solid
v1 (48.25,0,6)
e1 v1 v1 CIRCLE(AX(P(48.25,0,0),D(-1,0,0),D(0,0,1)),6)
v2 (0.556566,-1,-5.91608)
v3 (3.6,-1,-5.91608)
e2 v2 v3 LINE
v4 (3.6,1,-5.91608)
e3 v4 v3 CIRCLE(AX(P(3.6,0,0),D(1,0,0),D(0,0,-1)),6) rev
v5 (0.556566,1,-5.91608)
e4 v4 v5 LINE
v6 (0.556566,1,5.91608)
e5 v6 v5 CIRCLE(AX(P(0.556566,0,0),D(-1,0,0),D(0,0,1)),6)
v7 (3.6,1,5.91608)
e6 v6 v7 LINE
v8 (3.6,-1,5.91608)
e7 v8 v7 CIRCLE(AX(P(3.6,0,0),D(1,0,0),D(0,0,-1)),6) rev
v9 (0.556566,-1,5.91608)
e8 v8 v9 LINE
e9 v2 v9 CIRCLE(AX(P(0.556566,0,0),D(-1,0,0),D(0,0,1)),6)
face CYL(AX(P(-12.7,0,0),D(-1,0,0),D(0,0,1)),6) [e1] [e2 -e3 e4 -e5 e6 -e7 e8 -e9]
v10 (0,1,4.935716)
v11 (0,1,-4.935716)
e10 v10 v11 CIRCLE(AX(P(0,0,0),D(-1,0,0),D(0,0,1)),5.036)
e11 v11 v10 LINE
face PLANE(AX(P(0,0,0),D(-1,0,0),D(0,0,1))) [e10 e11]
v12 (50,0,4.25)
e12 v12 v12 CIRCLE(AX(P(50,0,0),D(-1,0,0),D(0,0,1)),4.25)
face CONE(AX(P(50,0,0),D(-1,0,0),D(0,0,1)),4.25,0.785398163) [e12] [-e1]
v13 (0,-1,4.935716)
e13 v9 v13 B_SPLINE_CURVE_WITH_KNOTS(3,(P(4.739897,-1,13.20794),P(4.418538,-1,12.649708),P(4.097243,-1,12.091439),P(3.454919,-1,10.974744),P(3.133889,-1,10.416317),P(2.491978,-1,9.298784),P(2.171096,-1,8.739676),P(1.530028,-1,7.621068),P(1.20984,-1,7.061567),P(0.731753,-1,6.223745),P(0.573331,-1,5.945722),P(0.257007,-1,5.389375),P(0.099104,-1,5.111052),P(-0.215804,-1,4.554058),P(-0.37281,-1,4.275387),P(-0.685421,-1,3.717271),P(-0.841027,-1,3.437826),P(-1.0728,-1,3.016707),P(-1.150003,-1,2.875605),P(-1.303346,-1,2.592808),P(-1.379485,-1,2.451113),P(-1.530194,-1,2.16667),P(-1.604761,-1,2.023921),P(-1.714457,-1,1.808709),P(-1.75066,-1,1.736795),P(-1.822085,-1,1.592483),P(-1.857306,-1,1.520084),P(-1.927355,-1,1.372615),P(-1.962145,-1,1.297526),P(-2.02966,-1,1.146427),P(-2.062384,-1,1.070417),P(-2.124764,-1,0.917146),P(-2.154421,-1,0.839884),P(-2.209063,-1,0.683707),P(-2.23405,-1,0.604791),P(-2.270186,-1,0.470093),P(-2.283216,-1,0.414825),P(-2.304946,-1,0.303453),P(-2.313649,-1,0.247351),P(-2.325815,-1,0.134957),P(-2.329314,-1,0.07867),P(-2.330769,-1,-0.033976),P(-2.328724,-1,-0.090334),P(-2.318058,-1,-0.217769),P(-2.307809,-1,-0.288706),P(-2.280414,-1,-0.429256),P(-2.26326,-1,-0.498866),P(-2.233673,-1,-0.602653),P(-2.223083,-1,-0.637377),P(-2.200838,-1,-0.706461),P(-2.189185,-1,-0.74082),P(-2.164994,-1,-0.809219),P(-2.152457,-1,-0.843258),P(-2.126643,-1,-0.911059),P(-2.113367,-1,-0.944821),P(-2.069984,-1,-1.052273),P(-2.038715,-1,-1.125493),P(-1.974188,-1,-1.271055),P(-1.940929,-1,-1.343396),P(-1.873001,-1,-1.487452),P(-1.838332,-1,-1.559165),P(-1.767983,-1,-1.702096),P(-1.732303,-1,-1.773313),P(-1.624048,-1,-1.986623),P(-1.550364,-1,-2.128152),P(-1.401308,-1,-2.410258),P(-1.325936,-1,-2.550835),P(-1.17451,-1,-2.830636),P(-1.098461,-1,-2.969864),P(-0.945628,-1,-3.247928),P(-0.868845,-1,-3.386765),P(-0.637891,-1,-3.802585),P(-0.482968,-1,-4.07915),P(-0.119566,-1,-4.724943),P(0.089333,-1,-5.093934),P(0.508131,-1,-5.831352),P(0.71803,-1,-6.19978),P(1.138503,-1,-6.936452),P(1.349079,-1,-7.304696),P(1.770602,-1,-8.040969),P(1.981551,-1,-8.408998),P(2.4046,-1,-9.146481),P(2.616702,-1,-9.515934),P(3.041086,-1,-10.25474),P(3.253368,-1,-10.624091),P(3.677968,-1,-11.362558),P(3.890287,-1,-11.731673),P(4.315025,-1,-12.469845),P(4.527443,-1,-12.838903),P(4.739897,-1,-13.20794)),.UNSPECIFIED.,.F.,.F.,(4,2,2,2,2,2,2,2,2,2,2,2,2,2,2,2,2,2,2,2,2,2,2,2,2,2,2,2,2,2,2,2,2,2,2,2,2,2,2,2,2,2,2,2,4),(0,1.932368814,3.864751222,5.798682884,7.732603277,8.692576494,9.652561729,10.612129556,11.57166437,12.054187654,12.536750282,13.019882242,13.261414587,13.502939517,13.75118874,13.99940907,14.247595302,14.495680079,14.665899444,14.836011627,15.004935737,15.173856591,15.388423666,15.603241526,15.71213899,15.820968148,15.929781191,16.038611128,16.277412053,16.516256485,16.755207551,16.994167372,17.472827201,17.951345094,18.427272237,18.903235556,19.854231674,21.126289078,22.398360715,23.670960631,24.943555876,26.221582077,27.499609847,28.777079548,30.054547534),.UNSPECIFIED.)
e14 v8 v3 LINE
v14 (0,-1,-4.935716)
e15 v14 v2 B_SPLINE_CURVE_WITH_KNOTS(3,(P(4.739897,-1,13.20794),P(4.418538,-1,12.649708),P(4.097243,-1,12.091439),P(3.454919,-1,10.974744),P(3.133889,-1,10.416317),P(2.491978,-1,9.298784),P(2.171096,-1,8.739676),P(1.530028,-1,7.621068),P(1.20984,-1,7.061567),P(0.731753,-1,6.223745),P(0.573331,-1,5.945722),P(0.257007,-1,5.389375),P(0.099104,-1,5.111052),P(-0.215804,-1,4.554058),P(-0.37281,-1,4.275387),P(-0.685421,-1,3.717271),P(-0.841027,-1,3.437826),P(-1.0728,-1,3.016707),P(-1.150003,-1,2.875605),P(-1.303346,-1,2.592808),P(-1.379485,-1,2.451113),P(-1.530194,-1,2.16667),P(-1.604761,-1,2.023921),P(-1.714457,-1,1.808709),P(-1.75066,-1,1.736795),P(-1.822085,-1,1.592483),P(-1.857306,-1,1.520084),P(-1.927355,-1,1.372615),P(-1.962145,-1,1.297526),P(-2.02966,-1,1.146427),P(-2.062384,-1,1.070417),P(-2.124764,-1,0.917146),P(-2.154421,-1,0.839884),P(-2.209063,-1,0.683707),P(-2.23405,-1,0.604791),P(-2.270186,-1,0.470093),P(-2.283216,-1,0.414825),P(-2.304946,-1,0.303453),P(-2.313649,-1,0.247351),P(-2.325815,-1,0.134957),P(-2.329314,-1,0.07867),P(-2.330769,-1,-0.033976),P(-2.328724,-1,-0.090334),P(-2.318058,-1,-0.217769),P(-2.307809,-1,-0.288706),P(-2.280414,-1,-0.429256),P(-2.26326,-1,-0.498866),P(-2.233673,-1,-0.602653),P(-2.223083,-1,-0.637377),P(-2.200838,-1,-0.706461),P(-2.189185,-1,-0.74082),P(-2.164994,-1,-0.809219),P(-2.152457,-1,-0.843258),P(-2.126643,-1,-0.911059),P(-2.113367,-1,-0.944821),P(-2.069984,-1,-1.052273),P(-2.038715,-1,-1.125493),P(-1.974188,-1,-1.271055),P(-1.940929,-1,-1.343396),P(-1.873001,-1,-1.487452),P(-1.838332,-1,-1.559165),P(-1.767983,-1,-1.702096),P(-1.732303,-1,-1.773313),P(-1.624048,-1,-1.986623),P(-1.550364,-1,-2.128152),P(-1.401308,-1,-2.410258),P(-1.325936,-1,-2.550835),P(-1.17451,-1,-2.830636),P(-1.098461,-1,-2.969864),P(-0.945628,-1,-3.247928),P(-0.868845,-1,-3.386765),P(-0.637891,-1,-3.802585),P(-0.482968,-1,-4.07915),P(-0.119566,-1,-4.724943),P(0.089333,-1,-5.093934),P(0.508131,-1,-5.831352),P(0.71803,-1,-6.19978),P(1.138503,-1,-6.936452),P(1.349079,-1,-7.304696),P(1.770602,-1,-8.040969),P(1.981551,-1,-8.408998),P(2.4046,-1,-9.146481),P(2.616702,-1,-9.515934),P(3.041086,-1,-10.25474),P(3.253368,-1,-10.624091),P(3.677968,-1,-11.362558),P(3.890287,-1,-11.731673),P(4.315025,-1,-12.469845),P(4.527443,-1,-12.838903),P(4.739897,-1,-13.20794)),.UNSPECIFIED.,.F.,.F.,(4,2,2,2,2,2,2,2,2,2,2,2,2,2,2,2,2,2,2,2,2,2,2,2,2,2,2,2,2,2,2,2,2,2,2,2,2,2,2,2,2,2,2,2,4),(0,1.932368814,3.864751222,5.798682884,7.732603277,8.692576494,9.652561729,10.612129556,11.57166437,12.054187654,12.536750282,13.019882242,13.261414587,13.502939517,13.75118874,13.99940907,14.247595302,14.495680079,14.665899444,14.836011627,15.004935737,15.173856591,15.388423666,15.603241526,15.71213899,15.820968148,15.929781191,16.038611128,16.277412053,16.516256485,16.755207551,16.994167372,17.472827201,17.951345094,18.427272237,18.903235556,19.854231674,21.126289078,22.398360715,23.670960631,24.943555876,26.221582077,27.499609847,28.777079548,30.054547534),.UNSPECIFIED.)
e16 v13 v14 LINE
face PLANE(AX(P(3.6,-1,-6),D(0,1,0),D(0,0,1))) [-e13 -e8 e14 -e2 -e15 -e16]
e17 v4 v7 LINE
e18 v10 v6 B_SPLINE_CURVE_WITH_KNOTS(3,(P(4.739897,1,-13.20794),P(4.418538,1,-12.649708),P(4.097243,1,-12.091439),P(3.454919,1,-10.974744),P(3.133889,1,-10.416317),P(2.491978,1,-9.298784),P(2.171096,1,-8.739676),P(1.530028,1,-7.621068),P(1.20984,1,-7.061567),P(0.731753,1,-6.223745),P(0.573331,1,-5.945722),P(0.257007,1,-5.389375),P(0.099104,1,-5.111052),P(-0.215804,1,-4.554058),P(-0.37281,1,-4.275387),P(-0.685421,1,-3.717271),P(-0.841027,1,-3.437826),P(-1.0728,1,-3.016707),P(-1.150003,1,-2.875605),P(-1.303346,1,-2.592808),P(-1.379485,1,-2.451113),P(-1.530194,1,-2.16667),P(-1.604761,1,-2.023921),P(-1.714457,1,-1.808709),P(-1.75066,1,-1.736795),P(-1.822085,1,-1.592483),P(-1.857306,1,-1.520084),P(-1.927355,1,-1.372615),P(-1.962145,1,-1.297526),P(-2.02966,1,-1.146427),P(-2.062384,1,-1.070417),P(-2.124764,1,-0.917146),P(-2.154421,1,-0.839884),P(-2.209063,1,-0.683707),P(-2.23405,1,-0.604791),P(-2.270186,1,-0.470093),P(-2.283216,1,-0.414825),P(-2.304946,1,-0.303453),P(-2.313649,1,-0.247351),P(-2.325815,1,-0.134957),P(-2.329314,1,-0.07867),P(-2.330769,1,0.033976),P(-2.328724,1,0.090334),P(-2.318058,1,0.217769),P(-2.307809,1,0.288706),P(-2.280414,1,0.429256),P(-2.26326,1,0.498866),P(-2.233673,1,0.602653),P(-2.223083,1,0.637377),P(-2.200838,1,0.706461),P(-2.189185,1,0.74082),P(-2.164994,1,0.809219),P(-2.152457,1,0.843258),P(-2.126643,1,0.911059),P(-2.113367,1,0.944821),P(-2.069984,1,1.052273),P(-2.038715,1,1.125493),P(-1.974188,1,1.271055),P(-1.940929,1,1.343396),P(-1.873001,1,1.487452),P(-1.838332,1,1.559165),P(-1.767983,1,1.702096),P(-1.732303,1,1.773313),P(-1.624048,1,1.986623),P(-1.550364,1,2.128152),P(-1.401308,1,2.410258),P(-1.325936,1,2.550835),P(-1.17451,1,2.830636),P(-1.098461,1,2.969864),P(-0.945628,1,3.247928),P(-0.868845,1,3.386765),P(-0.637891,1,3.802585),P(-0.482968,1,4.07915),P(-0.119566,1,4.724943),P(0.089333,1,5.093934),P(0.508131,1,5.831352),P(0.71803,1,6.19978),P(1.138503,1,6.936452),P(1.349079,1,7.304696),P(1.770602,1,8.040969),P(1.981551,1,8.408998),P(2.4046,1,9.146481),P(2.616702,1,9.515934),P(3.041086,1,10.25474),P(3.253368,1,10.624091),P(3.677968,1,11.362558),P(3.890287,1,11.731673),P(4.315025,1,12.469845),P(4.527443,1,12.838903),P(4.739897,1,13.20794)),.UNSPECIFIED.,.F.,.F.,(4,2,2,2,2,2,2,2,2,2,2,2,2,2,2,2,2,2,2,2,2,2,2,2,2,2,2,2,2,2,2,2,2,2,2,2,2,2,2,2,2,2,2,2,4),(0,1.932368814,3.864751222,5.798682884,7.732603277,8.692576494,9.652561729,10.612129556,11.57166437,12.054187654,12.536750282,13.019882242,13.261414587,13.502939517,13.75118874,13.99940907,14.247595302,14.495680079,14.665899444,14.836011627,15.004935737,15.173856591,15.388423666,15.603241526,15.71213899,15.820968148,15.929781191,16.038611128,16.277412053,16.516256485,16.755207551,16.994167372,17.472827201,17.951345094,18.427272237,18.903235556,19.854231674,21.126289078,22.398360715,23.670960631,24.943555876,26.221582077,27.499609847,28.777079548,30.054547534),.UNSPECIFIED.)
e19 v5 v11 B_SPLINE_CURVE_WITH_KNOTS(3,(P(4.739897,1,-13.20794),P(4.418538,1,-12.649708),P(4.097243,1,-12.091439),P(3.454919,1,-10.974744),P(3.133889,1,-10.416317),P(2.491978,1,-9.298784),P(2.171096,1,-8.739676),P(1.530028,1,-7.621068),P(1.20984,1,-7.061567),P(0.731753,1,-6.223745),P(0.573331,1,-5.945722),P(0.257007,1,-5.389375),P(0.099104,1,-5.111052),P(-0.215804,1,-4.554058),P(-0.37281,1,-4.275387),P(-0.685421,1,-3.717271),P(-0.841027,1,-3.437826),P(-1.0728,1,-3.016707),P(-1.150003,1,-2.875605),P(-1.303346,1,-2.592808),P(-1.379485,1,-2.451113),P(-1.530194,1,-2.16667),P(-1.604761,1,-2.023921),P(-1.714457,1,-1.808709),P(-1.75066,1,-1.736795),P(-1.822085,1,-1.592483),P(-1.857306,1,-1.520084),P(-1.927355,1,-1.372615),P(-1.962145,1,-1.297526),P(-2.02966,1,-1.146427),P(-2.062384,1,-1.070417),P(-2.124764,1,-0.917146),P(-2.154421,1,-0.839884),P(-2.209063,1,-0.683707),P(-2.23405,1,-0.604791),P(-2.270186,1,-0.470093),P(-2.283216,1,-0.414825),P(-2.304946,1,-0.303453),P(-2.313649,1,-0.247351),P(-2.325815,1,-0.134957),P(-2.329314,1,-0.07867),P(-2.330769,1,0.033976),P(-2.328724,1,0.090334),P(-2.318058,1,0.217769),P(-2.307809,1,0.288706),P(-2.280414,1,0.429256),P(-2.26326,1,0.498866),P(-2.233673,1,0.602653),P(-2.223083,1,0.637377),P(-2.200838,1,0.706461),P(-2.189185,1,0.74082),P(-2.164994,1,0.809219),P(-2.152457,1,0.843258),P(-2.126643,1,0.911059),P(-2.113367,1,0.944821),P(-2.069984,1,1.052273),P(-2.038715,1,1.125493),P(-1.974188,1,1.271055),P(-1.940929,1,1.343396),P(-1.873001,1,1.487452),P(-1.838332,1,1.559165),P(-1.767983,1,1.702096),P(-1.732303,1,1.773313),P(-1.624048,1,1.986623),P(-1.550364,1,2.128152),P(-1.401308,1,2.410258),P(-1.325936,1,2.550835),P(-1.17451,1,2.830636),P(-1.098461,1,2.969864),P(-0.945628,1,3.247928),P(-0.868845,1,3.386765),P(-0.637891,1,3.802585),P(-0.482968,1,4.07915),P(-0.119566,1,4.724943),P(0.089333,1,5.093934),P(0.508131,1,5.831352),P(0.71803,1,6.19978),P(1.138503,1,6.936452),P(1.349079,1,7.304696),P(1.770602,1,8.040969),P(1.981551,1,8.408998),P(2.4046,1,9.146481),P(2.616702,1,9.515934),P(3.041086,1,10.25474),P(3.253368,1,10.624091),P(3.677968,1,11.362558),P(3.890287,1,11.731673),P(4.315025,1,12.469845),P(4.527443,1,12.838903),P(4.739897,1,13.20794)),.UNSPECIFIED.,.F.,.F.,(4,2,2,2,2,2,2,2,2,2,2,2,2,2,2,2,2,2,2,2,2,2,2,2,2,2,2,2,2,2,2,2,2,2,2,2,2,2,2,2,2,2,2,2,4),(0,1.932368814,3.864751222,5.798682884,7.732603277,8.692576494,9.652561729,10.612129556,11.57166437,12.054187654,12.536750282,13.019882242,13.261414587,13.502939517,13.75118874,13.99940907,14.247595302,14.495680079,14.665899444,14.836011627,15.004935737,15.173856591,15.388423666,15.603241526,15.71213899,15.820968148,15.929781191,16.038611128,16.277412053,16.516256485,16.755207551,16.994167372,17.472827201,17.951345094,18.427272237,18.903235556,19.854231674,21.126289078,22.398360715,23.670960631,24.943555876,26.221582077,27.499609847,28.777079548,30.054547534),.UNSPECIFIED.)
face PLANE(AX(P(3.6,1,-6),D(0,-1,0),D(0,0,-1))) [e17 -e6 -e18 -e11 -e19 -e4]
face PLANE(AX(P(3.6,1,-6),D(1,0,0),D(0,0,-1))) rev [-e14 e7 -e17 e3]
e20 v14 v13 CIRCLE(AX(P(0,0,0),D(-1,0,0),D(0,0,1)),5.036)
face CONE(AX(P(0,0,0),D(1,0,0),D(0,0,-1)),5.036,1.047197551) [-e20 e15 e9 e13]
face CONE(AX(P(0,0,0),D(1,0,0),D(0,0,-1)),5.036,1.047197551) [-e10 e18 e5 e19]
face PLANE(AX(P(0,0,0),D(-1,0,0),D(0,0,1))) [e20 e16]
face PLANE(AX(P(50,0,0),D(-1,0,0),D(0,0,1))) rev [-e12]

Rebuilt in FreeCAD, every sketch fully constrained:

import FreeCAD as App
import Part
import Sketcher
from FreeCAD import Vector
Q = App.Units.Quantity

doc = App.newDocument("Part")
body = doc.addObject("PartDesign::Body", "Body")

# Sketch on XY plane
sketch1 = body.newObject("Sketcher::SketchObject", "Sketch")
sketch1.AttachmentSupport = (doc.getObject("XY_Plane"), [""])
sketch1.MapMode = "FlatFace"
sketch1.addGeometry([
    Part.LineSegment(Vector(50, 0, 0), Vector(50, 4.2, 0)),  # 0
    Part.LineSegment(Vector(50, 4.2, 0), Vector(48.2, 6, 0)),  # 1
    Part.LineSegment(Vector(48.2, 6, 0), Vector(0.6, 6, 0)),  # 2
    Part.LineSegment(Vector(0.6, 6, 0), Vector(0, 5, 0)),  # 3
    Part.LineSegment(Vector(0, 5, 0), Vector(0, 0, 0)),  # 4
    Part.LineSegment(Vector(0, 0, 0), Vector(50, 0, 0)),  # 5
], False)
sketch1.addConstraint([
    Sketcher.Constraint("Coincident", 0, 2, 1, 1),
    Sketcher.Constraint("Coincident", 1, 2, 2, 1),
    Sketcher.Constraint("Coincident", 2, 2, 3, 1),
    Sketcher.Constraint("Coincident", 3, 2, 4, 1),
    Sketcher.Constraint("Coincident", 4, 2, 5, 1),
    Sketcher.Constraint("Coincident", 5, 2, 0, 1),
    Sketcher.Constraint("Vertical", 0),
    Sketcher.Constraint("Horizontal", 2),
    Sketcher.Constraint("Vertical", 4),
    Sketcher.Constraint("Horizontal", 5),
    Sketcher.Constraint("Coincident", 4, 2, -1, 1),
    Sketcher.Constraint("DistanceX", 5, 1, 5, 2, 50.0),
    Sketcher.Constraint("Angle", 1, Q("135 deg")),
    Sketcher.Constraint("Angle", 3, Q("-120 deg")),
    Sketcher.Constraint("DistanceY", -1, 1, 1, 2, 6.0),
    Sketcher.Constraint("DistanceY", 0, 1, 0, 2, 4.25),
    Sketcher.Constraint("DistanceY", 4, 2, 4, 1, 5.036),
])
revolution = body.newObject("PartDesign::Revolution", "Revolution")
revolution.Profile = sketch1
revolution.ReferenceAxis = (sketch1, ["H_Axis"])
revolution.Angle = 360

# Sketch on YZ plane
sketch2 = body.newObject("Sketcher::SketchObject", "Sketch001")
sketch2.AttachmentSupport = (doc.getObject("YZ_Plane"), [""])
sketch2.MapMode = "FlatFace"
sketch2.addGeometry([
    Part.LineSegment(Vector(1, 6, 0), Vector(-1, 6, 0)),
    Part.LineSegment(Vector(-1, 6, 0), Vector(-1, -6, 0)),
    Part.LineSegment(Vector(-1, -6, 0), Vector(1, -6, 0)),
    Part.LineSegment(Vector(1, -6, 0), Vector(1, 6, 0)),
], False)
sketch2.addConstraint([
    Sketcher.Constraint("Coincident", 0, 2, 1, 1),
    Sketcher.Constraint("Coincident", 1, 2, 2, 1),
    Sketcher.Constraint("Coincident", 2, 2, 3, 1),
    Sketcher.Constraint("Coincident", 3, 2, 0, 1),
    Sketcher.Constraint("Horizontal", 0),
    Sketcher.Constraint("Vertical", 1),
    Sketcher.Constraint("Horizontal", 2),
    Sketcher.Constraint("Vertical", 3),
    Sketcher.Constraint("Symmetric", 0, 2, 2, 2, -1, 1),
    Sketcher.Constraint("DistanceX", 0, 2, 0, 1, 2.0),
    Sketcher.Constraint("DistanceY", 1, 2, 1, 1, 12.0),
])
pocket1 = body.newObject("PartDesign::Pocket", "Pocket")
pocket1.Profile = sketch2
pocket1.Length = 3.6
pocket1.Reversed = True

doc.recompute()
